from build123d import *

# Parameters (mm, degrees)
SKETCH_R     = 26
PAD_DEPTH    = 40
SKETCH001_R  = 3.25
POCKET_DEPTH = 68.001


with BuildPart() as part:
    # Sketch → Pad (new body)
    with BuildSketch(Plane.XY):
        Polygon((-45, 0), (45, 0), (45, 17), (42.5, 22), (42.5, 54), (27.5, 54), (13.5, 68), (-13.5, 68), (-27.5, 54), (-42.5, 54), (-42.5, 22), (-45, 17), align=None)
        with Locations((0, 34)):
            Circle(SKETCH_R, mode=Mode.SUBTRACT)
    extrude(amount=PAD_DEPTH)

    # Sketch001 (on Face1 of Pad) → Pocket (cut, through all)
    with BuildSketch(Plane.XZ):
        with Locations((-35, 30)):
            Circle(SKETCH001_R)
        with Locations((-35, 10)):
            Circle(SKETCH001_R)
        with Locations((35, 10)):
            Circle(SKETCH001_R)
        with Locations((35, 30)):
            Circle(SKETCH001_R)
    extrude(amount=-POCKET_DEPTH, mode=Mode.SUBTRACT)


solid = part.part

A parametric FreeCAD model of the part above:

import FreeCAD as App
import Part
import Sketcher
from FreeCAD import Vector


def add_polygon(sketch, points):
    """Adds a closed chain of lines whose ends are joined by coincident constraints."""
    first, n = sketch.GeometryCount, len(points)
    for a, b in zip(points, points[1:] + points[:1]):
        sketch.addGeometry(Part.LineSegment(App.Vector(*a, 0), App.Vector(*b, 0)), False)
    for i in range(n):
        sketch.addConstraint(Sketcher.Constraint("Coincident", first + i, 2, first + (i + 1) % n, 1))

doc = App.newDocument("Part")
params = doc.addObject("Spreadsheet::Sheet", "Params")
for row, (alias, value) in enumerate([
    ("sketch1_diameter", "52 mm"),
    ("sketch1_width", "90 mm"),
    ("sketch1_width2", "15 mm"),
    ("sketch1_width3", "27 mm"),
    ("sketch1_height", "17 mm"),
    ("pad1_length", "40 mm"),
    ("sketch2_diameter", "6.5 mm"),
], start=1):
    params.set(f"A{row}", alias)
    params.set(f"B{row}", "=" + value)
    params.setAlias(f"B{row}", alias)

body = doc.addObject("PartDesign::Body", "Body")

sketch1 = body.newObject("Sketcher::SketchObject", "Sketch")
sketch1.AttachmentSupport = (doc.getObject("XY_Plane"), [""])
sketch1.MapMode = "FlatFace"
add_polygon(sketch1, [(-45, 0), (45, 0), (45, 17), (42, 22), (42, 54), (28, 54), (14, 68), (-14, 68), (-28, 54), (-42, 54), (-42, 22), (-45, 17)])
sketch1.addGeometry(Part.Circle(Vector(0, 34, 0), Vector(0, 0, 1), 26), False)
sketch1.addConstraint([
    Sketcher.Constraint("Horizontal", 0),
    Sketcher.Constraint("Vertical", 1),
    Sketcher.Constraint("Vertical", 3),
    Sketcher.Constraint("Horizontal", 4),
    Sketcher.Constraint("Horizontal", 6),
    Sketcher.Constraint("Horizontal", 8),
    Sketcher.Constraint("Vertical", 9),
    Sketcher.Constraint("Vertical", 11),
    Sketcher.Constraint("Symmetric", 0, 2, 11, 2, -1, 1),
    Sketcher.Constraint("Symmetric", 4, 2, 7, 2, -2),
    Sketcher.Constraint("Symmetric", 2, 2, 9, 2, -2),
    Sketcher.Constraint("PointOnObject", 12, 3, -2),
    Sketcher.Constraint("Perpendicular", 5, 7),
    Sketcher.Constraint("Horizontal", 1, 2, 10, 2),
    Sketcher.Constraint("Equal", 5, 7),
    Sketcher.Constraint("Diameter", 12, 52.0),
    Sketcher.Constraint("DistanceX", 0, 1, 0, 2, 90.0),
    Sketcher.Constraint("DistanceX", 4, 2, 4, 1, 15.0),
    Sketcher.Constraint("DistanceX", 6, 2, 6, 1, 27.0),
    Sketcher.Constraint("DistanceY", 1, 1, 1, 2, 17.0),
    Sketcher.Constraint("DistanceY", 3, 1, 3, 2, 32.0),
    Sketcher.Constraint("DistanceY", -1, 1, 12, 3, 34.0),
    Sketcher.Constraint("DistanceY", -1, 1, 2, 2, 22.0),
    Sketcher.Constraint("DistanceY", -1, 1, 5, 2, 68.0),
])
sketch1.setExpression("Constraints[27]", "Params.sketch1_diameter")
sketch1.setExpression("Constraints[28]", "Params.sketch1_width")
sketch1.setExpression("Constraints[29]", "Params.sketch1_width2")
sketch1.setExpression("Constraints[30]", "Params.sketch1_width3")
sketch1.setExpression("Constraints[31]", "Params.sketch1_height")
pad1 = body.newObject("PartDesign::Pad", "Pad")
pad1.Profile = sketch1
pad1.setExpression("Length", "Params.pad1_length")

sketch2 = body.newObject("Sketcher::SketchObject", "Sketch001")
sketch2.AttachmentSupport = (doc.getObject("XZ_Plane"), [""])
sketch2.MapMode = "FlatFace"
sketch2.addGeometry([
    Part.Circle(Vector(-35, 30, 0), Vector(0, 0, 1), 3.2),
    Part.Circle(Vector(-35, 10, 0), Vector(0, 0, 1), 3.2),
    Part.Circle(Vector(35, 10, 0), Vector(0, 0, 1), 3.2),
    Part.Circle(Vector(35, 30, 0), Vector(0, 0, 1), 3.2),
], False)
sketch2.addConstraint([
    Sketcher.Constraint("Equal", 0, 1),
    Sketcher.Constraint("Equal", 1, 2),
    Sketcher.Constraint("Equal", 2, 3),
    Sketcher.Constraint("Symmetric", 1, 3, 2, 3, -2),
    Sketcher.Constraint("Symmetric", 0, 3, 3, 3, -2),
    Sketcher.Constraint("Vertical", 0, 3, 1, 3),
    Sketcher.Constraint("Diameter", 0, 6.5),
    Sketcher.Constraint("DistanceX", 0, 3, -1, 1, 35.0),
    Sketcher.Constraint("DistanceY", -1, 1, 0, 3, 30.0),
    Sketcher.Constraint("DistanceY", -1, 1, 1, 3, 10.0),
])
sketch2.setExpression("Constraints[6]", "Params.sketch2_diameter")
pocket1 = body.newObject("PartDesign::Pocket", "Pocket")
pocket1.Profile = sketch2
pocket1.Type = "ThroughAll"

doc.recompute()
